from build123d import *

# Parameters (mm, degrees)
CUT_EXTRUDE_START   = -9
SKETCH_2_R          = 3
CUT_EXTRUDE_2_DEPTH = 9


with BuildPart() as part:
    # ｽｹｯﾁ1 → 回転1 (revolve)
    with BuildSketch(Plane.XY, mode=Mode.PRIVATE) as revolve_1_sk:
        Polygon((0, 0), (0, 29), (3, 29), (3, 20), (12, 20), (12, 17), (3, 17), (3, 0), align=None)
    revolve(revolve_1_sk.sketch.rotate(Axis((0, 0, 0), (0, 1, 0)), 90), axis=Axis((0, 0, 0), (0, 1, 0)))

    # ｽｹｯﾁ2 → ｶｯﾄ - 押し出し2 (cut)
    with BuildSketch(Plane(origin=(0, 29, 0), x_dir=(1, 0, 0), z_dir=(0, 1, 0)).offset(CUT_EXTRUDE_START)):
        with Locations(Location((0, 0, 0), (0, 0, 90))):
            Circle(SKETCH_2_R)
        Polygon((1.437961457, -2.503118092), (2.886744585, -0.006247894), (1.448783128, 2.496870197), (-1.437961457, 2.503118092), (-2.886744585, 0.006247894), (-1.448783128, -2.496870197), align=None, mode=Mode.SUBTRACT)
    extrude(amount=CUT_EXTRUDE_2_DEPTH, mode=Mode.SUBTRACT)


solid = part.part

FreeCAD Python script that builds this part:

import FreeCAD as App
import Part
import Sketcher


def add_polygon(sketch, points):
    """Adds a closed chain of lines whose ends are joined by coincident constraints."""
    first, n = sketch.GeometryCount, len(points)
    for a, b in zip(points, points[1:] + points[:1]):
        sketch.addGeometry(Part.LineSegment(App.Vector(*a, 0), App.Vector(*b, 0)), False)
    for i in range(n):
        sketch.addConstraint(Sketcher.Constraint("Coincident", first + i, 2, first + (i + 1) % n, 1))

doc = App.newDocument("Part")
body = doc.addObject("PartDesign::Body", "Body")

# Sketch on XY plane
sketch1 = doc.addObject("Sketcher::SketchObject", "Sketch")
body.addObject(sketch1)
sketch1.AttachmentSupport = (doc.XY_Plane, [""])
sketch1.MapMode = "FlatFace"
add_polygon(sketch1, [(0, 29), (0, 0), (3, 0), (3, 17), (12, 17), (12, 20), (3, 20), (3, 29)])  # lines 0-7
sketch1.addConstraint([
    Sketcher.Constraint("Vertical", 0),
    Sketcher.Constraint("Horizontal", 1),
    Sketcher.Constraint("Vertical", 2),
    Sketcher.Constraint("Horizontal", 3),
    Sketcher.Constraint("Vertical", 4),
    Sketcher.Constraint("Horizontal", 5),
    Sketcher.Constraint("Vertical", 6),
    Sketcher.Constraint("Horizontal", 7),
    Sketcher.Constraint("Coincident", 0, 2, -1, 1),
    Sketcher.Constraint("Vertical", 2, 2, 5, 2),
    Sketcher.Constraint("Equal", 7, 4),
    Sketcher.Constraint("Equal", 5, 6),
    Sketcher.Constraint("DistanceX", 1, 1, 1, 2, 3.0),
    Sketcher.Constraint("DistanceX", 3, 1, 3, 2, 9.0),
    Sketcher.Constraint("DistanceY", 0, 2, 0, 1, 29.0),
])
revolution = doc.addObject("PartDesign::Revolution", "Revolution")
body.addObject(revolution)
revolution.Profile = sketch1
revolution.ReferenceAxis = (sketch1, ["V_Axis"])
revolution.Angle = 360

# Sketch on XZ plane
sketch2 = doc.addObject("Sketcher::SketchObject", "Sketch001")
body.addObject(sketch2)
sketch2.AttachmentSupport = (doc.XZ_Plane, [""])
sketch2.MapMode = "FlatFace"
sketch2.AttachmentOffset = App.Placement(App.Vector(0, 0, -20), App.Rotation())
sketch2.addGeometry(Part.Circle(App.Vector(0, 0, 0), App.Vector(0, 0, 1), 3), False)  # 0
add_polygon(sketch2, [(2.886745, 0.006248), (1.437961, 2.503118), (-1.448783, 2.49687), (-2.886745, -0.006248), (-1.437961, -2.503118), (1.448783, -2.49687)])  # lines 1-6
sketch2.addConstraint([
    Sketcher.Constraint("Coincident", 0, 3, -1, 1),
    Sketcher.Constraint("Symmetric", 1, 2, 4, 2, -1, 1),
    Sketcher.Constraint("Symmetric", 2, 2, 5, 2, -1, 1),
    Sketcher.Constraint("Symmetric", 3, 2, 6, 2, -1, 1),
    Sketcher.Constraint("Equal", 1, 2),
    Sketcher.Constraint("Equal", 2, 3),
    Sketcher.Constraint("Diameter", 0, 6.0),
    Sketcher.Constraint("Distance", 1, 2.886751),
    Sketcher.Constraint("DistanceX", -1, 1, 1, 2, 1.437961),
    Sketcher.Constraint("DistanceY", -1, 1, 1, 2, 2.503118),
    Sketcher.Constraint("DistanceY", -1, 1, 2, 2, 2.49687),
])
pocket1 = doc.addObject("PartDesign::Pocket", "Pocket")
body.addObject(pocket1)
pocket1.Profile = sketch2
pocket1.Length = 9

doc.recompute()
